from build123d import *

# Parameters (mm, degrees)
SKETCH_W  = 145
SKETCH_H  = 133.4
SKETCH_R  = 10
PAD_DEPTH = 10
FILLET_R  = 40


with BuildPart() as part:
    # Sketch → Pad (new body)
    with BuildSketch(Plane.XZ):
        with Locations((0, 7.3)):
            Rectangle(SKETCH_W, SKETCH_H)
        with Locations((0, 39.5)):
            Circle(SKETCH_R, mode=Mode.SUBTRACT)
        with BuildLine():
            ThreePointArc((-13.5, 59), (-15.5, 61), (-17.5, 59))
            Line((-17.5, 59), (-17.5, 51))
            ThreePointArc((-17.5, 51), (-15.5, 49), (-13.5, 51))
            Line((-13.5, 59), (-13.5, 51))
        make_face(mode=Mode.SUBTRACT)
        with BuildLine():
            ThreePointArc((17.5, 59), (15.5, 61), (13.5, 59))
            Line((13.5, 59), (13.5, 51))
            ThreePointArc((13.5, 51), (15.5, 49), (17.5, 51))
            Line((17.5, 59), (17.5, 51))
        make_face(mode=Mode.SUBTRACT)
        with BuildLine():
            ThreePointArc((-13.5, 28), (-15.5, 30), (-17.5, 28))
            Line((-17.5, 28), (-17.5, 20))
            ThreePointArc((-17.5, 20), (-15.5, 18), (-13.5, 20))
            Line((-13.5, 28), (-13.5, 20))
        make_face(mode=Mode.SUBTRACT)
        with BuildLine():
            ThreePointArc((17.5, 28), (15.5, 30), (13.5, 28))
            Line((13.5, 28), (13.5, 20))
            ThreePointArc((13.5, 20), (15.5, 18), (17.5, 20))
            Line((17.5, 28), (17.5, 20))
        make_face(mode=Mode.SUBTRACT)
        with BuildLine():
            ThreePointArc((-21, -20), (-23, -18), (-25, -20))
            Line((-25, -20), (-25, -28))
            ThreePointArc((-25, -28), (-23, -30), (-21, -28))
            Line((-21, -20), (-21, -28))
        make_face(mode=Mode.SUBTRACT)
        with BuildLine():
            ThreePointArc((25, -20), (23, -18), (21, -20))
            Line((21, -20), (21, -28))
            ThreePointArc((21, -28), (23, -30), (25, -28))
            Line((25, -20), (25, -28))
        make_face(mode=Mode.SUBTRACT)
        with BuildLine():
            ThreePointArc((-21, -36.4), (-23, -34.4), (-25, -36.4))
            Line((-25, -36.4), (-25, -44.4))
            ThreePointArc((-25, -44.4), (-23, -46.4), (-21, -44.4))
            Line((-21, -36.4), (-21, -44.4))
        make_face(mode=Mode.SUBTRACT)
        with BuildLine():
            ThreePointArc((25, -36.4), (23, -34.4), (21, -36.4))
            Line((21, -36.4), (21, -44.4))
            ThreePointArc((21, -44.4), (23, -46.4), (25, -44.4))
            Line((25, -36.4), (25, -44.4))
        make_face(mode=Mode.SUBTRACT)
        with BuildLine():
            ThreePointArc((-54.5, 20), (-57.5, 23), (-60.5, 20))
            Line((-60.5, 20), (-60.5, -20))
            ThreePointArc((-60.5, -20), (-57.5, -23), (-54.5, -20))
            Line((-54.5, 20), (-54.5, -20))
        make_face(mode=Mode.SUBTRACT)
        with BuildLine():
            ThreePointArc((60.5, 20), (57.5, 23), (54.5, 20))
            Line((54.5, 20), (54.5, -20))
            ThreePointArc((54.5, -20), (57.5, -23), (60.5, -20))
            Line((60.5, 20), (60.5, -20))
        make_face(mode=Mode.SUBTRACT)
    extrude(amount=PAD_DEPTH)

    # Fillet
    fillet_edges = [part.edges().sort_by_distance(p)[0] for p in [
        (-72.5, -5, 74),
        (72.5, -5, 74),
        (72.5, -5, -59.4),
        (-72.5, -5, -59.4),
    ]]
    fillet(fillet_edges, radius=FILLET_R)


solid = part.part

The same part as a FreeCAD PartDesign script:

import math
import FreeCAD as App
import Part
import Sketcher
Q = App.Units.Quantity


def edges_at(feature, points):
    """Names of the edges that pass closest to the given points."""
    edges = feature.Shape.Edges
    near = lambda p: min(range(len(edges)), key=lambda i: edges[i].distToShape(Part.Vertex(*p))[0])
    return sorted({f"Edge{near(p) + 1}" for p in points})


def add_polygon(sketch, points):
    """Adds a closed chain of lines whose ends are joined by coincident constraints."""
    first, n = sketch.GeometryCount, len(points)
    for a, b in zip(points, points[1:] + points[:1]):
        sketch.addGeometry(Part.LineSegment(App.Vector(*a, 0), App.Vector(*b, 0)), False)
    for i in range(n):
        sketch.addConstraint(Sketcher.Constraint("Coincident", first + i, 2, first + (i + 1) % n, 1))

doc = App.newDocument("Part")
body = doc.addObject("PartDesign::Body", "Body")

# Sketch on XZ plane
sketch1 = body.newObject("Sketcher::SketchObject", "Sketch")
sketch1.AttachmentSupport = (doc.getObject("XZ_Plane"), [""])
sketch1.MapMode = "FlatFace"
add_polygon(sketch1, [(-72.5, 74), (-72.5, -59.4), (72.5, -59.4), (72.5, 74)])  # lines 0-3
sketch1.addGeometry(Part.ArcOfCircle(Part.Circle(App.Vector(-23, -36.4, 0), App.Vector(0, 0, 1), 2), math.radians(0), math.radians(180)), False)  # 4
sketch1.addGeometry(Part.LineSegment(App.Vector(-21, -36.4, 0), App.Vector(-21, -44.4, 0)), False)  # 5
sketch1.addGeometry(Part.ArcOfCircle(Part.Circle(App.Vector(-23, -44.4, 0), App.Vector(0, 0, 1), 2), math.radians(180), math.radians(360)), False)  # 6
sketch1.addGeometry(Part.LineSegment(App.Vector(-25, -44.4, 0), App.Vector(-25, -36.4, 0)), False)  # 7
sketch1.addGeometry(Part.ArcOfCircle(Part.Circle(App.Vector(-23, -20, 0), App.Vector(0, 0, 1), 2), math.radians(0), math.radians(180)), False)  # 8
sketch1.addGeometry(Part.LineSegment(App.Vector(-21, -20, 0), App.Vector(-21, -28, 0)), False)  # 9
sketch1.addGeometry(Part.ArcOfCircle(Part.Circle(App.Vector(-23, -28, 0), App.Vector(0, 0, 1), 2), math.radians(180), math.radians(360)), False)  # 10
sketch1.addGeometry(Part.LineSegment(App.Vector(-25, -28, 0), App.Vector(-25, -20, 0)), False)  # 11
sketch1.addGeometry(Part.ArcOfCircle(Part.Circle(App.Vector(-57.5, 20, 0), App.Vector(0, 0, 1), 3), math.radians(0), math.radians(180)), False)  # 12
sketch1.addGeometry(Part.LineSegment(App.Vector(-54.5, 20, 0), App.Vector(-54.5, -20, 0)), False)  # 13
sketch1.addGeometry(Part.ArcOfCircle(Part.Circle(App.Vector(-57.5, -20, 0), App.Vector(0, 0, 1), 3), math.radians(180), math.radians(360)), False)  # 14
sketch1.addGeometry(Part.LineSegment(App.Vector(-60.5, -20, 0), App.Vector(-60.5, 20, 0)), False)  # 15
sketch1.addGeometry(Part.ArcOfCircle(Part.Circle(App.Vector(23, -36.4, 0), App.Vector(0, 0, 1), 2), math.radians(0), math.radians(180)), False)  # 16
sketch1.addGeometry(Part.LineSegment(App.Vector(25, -36.4, 0), App.Vector(25, -44.4, 0)), False)  # 17
sketch1.addGeometry(Part.ArcOfCircle(Part.Circle(App.Vector(23, -44.4, 0), App.Vector(0, 0, 1), 2), math.radians(180), math.radians(360)), False)  # 18
sketch1.addGeometry(Part.LineSegment(App.Vector(21, -44.4, 0), App.Vector(21, -36.4, 0)), False)  # 19
sketch1.addGeometry(Part.ArcOfCircle(Part.Circle(App.Vector(23, -20, 0), App.Vector(0, 0, 1), 2), math.radians(0), math.radians(180)), False)  # 20
sketch1.addGeometry(Part.LineSegment(App.Vector(25, -20, 0), App.Vector(25, -28, 0)), False)  # 21
sketch1.addGeometry(Part.ArcOfCircle(Part.Circle(App.Vector(23, -28, 0), App.Vector(0, 0, 1), 2), math.radians(180), math.radians(360)), False)  # 22
sketch1.addGeometry(Part.LineSegment(App.Vector(21, -28, 0), App.Vector(21, -20, 0)), False)  # 23
sketch1.addGeometry(Part.ArcOfCircle(Part.Circle(App.Vector(57.5, 20, 0), App.Vector(0, 0, 1), 3), math.radians(0), math.radians(180)), False)  # 24
sketch1.addGeometry(Part.LineSegment(App.Vector(60.5, 20, 0), App.Vector(60.5, -20, 0)), False)  # 25
sketch1.addGeometry(Part.ArcOfCircle(Part.Circle(App.Vector(57.5, -20, 0), App.Vector(0, 0, 1), 3), math.radians(180), math.radians(360)), False)  # 26
sketch1.addGeometry(Part.LineSegment(App.Vector(54.5, -20, 0), App.Vector(54.5, 20, 0)), False)  # 27
sketch1.addGeometry(Part.ArcOfCircle(Part.Circle(App.Vector(-15.5, 28, 0), App.Vector(0, 0, 1), 2), math.radians(0), math.radians(180)), False)  # 28
sketch1.addGeometry(Part.LineSegment(App.Vector(-13.5, 28, 0), App.Vector(-13.5, 20, 0)), False)  # 29
sketch1.addGeometry(Part.ArcOfCircle(Part.Circle(App.Vector(-15.5, 20, 0), App.Vector(0, 0, 1), 2), math.radians(180), math.radians(360)), False)  # 30
sketch1.addGeometry(Part.LineSegment(App.Vector(-17.5, 20, 0), App.Vector(-17.5, 28, 0)), False)  # 31
sketch1.addGeometry(Part.ArcOfCircle(Part.Circle(App.Vector(-15.5, 59, 0), App.Vector(0, 0, 1), 2), math.radians(0), math.radians(180)), False)  # 32
sketch1.addGeometry(Part.LineSegment(App.Vector(-13.5, 59, 0), App.Vector(-13.5, 51, 0)), False)  # 33
sketch1.addGeometry(Part.ArcOfCircle(Part.Circle(App.Vector(-15.5, 51, 0), App.Vector(0, 0, 1), 2), math.radians(180), math.radians(360)), False)  # 34
sketch1.addGeometry(Part.LineSegment(App.Vector(-17.5, 51, 0), App.Vector(-17.5, 59, 0)), False)  # 35
sketch1.addGeometry(Part.ArcOfCircle(Part.Circle(App.Vector(15.5, 28, 0), App.Vector(0, 0, 1), 2), math.radians(0), math.radians(180)), False)  # 36
sketch1.addGeometry(Part.LineSegment(App.Vector(17.5, 28, 0), App.Vector(17.5, 20, 0)), False)  # 37
sketch1.addGeometry(Part.ArcOfCircle(Part.Circle(App.Vector(15.5, 20, 0), App.Vector(0, 0, 1), 2), math.radians(180), math.radians(360)), False)  # 38
sketch1.addGeometry(Part.LineSegment(App.Vector(13.5, 20, 0), App.Vector(13.5, 28, 0)), False)  # 39
sketch1.addGeometry(Part.Circle(App.Vector(0, 39.5, 0), App.Vector(0, 0, 1), 10), False)  # 40
sketch1.addGeometry(Part.ArcOfCircle(Part.Circle(App.Vector(15.5, 59, 0), App.Vector(0, 0, 1), 2), math.radians(0), math.radians(180)), False)  # 41
sketch1.addGeometry(Part.LineSegment(App.Vector(17.5, 59, 0), App.Vector(17.5, 51, 0)), False)  # 42
sketch1.addGeometry(Part.ArcOfCircle(Part.Circle(App.Vector(15.5, 51, 0), App.Vector(0, 0, 1), 2), math.radians(180), math.radians(360)), False)  # 43
sketch1.addGeometry(Part.LineSegment(App.Vector(13.5, 51, 0), App.Vector(13.5, 59, 0)), False)  # 44
sketch1.addConstraint(Sketcher.Constraint("Tangent", 4, 1, 5, 1))
sketch1.addConstraint(Sketcher.Constraint("Tangent", 5, 2, 6, 2))
sketch1.addConstraint(Sketcher.Constraint("Tangent", 6, 1, 7, 1))
sketch1.addConstraint(Sketcher.Constraint("Tangent", 7, 2, 4, 2))
sketch1.addConstraint(Sketcher.Constraint("Tangent", 8, 1, 9, 1))
sketch1.addConstraint(Sketcher.Constraint("Tangent", 9, 2, 10, 2))
sketch1.addConstraint(Sketcher.Constraint("Tangent", 10, 1, 11, 1))
sketch1.addConstraint(Sketcher.Constraint("Tangent", 11, 2, 8, 2))
sketch1.addConstraint(Sketcher.Constraint("Tangent", 12, 1, 13, 1))
sketch1.addConstraint(Sketcher.Constraint("Tangent", 13, 2, 14, 2))
sketch1.addConstraint(Sketcher.Constraint("Tangent", 14, 1, 15, 1))
sketch1.addConstraint(Sketcher.Constraint("Tangent", 15, 2, 12, 2))
sketch1.addConstraint(Sketcher.Constraint("Tangent", 16, 1, 17, 1))
sketch1.addConstraint(Sketcher.Constraint("Tangent", 17, 2, 18, 2))
sketch1.addConstraint(Sketcher.Constraint("Tangent", 18, 1, 19, 1))
sketch1.addConstraint(Sketcher.Constraint("Tangent", 19, 2, 16, 2))
sketch1.addConstraint(Sketcher.Constraint("Tangent", 20, 1, 21, 1))
sketch1.addConstraint(Sketcher.Constraint("Tangent", 21, 2, 22, 2))
sketch1.addConstraint(Sketcher.Constraint("Tangent", 22, 1, 23, 1))
sketch1.addConstraint(Sketcher.Constraint("Tangent", 23, 2, 20, 2))
sketch1.addConstraint(Sketcher.Constraint("Tangent", 24, 1, 25, 1))
sketch1.addConstraint(Sketcher.Constraint("Tangent", 25, 2, 26, 2))
sketch1.addConstraint(Sketcher.Constraint("Tangent", 26, 1, 27, 1))
sketch1.addConstraint(Sketcher.Constraint("Tangent", 27, 2, 24, 2))
sketch1.addConstraint(Sketcher.Constraint("Tangent", 28, 1, 29, 1))
sketch1.addConstraint(Sketcher.Constraint("Tangent", 29, 2, 30, 2))
sketch1.addConstraint(Sketcher.Constraint("Tangent", 30, 1, 31, 1))
sketch1.addConstraint(Sketcher.Constraint("Tangent", 31, 2, 28, 2))
sketch1.addConstraint(Sketcher.Constraint("Tangent", 32, 1, 33, 1))
sketch1.addConstraint(Sketcher.Constraint("Tangent", 33, 2, 34, 2))
sketch1.addConstraint(Sketcher.Constraint("Tangent", 34, 1, 35, 1))
sketch1.addConstraint(Sketcher.Constraint("Tangent", 35, 2, 32, 2))
sketch1.addConstraint(Sketcher.Constraint("Tangent", 36, 1, 37, 1))
sketch1.addConstraint(Sketcher.Constraint("Tangent", 37, 2, 38, 2))
sketch1.addConstraint(Sketcher.Constraint("Tangent", 38, 1, 39, 1))
sketch1.addConstraint(Sketcher.Constraint("Tangent", 39, 2, 36, 2))
sketch1.addConstraint(Sketcher.Constraint("Tangent", 41, 1, 42, 1))
sketch1.addConstraint(Sketcher.Constraint("Tangent", 42, 2, 43, 2))
sketch1.addConstraint(Sketcher.Constraint("Tangent", 43, 1, 44, 1))
sketch1.addConstraint(Sketcher.Constraint("Tangent", 44, 2, 41, 2))
sketch1.addConstraint(Sketcher.Constraint("Vertical", 0))
sketch1.addConstraint(Sketcher.Constraint("Horizontal", 1))
sketch1.addConstraint(Sketcher.Constraint("Vertical", 2))
sketch1.addConstraint(Sketcher.Constraint("Horizontal", 3))
sketch1.addConstraint(Sketcher.Constraint("Vertical", 5))
sketch1.addConstraint(Sketcher.Constraint("Vertical", 7))
sketch1.addConstraint(Sketcher.Constraint("Vertical", 9))
sketch1.addConstraint(Sketcher.Constraint("Vertical", 11))
sketch1.addConstraint(Sketcher.Constraint("Vertical", 13))
sketch1.addConstraint(Sketcher.Constraint("Vertical", 15))
sketch1.addConstraint(Sketcher.Constraint("Vertical", 17))
sketch1.addConstraint(Sketcher.Constraint("Vertical", 19))
sketch1.addConstraint(Sketcher.Constraint("Vertical", 21))
sketch1.addConstraint(Sketcher.Constraint("Vertical", 23))
sketch1.addConstraint(Sketcher.Constraint("Vertical", 25))
sketch1.addConstraint(Sketcher.Constraint("Vertical", 27))
sketch1.addConstraint(Sketcher.Constraint("Vertical", 29))
sketch1.addConstraint(Sketcher.Constraint("Vertical", 31))
sketch1.addConstraint(Sketcher.Constraint("Vertical", 33))
sketch1.addConstraint(Sketcher.Constraint("Vertical", 35))
sketch1.addConstraint(Sketcher.Constraint("Vertical", 37))
sketch1.addConstraint(Sketcher.Constraint("Vertical", 39))
sketch1.addConstraint(Sketcher.Constraint("Vertical", 42))
sketch1.addConstraint(Sketcher.Constraint("Vertical", 44))
sketch1.addConstraint(Sketcher.Constraint("Equal", 6, 8))
sketch1.addConstraint(Sketcher.Constraint("Equal", 10, 16))
sketch1.addConstraint(Sketcher.Constraint("Equal", 18, 20))
sketch1.addConstraint(Sketcher.Constraint("Equal", 14, 24))
sketch1.addConstraint(Sketcher.Constraint("Equal", 22, 28))
sketch1.addConstraint(Sketcher.Constraint("Equal", 30, 32))
sketch1.addConstraint(Sketcher.Constraint("Equal", 34, 36))
sketch1.addConstraint(Sketcher.Constraint("Equal", 38, 41))
sketch1.addConstraint(Sketcher.Constraint("Symmetric", 14, 3, 24, 3, -1, 1))
sketch1.addConstraint(Sketcher.Constraint("Symmetric", 4, 3, 16, 3, -2))
sketch1.addConstraint(Sketcher.Constraint("Symmetric", 8, 3, 20, 3, -2))
sketch1.addConstraint(Sketcher.Constraint("Symmetric", 28, 3, 36, 3, -2))
sketch1.addConstraint(Sketcher.Constraint("Symmetric", 32, 3, 41, 3, -2))
sketch1.addConstraint(Sketcher.Constraint("PointOnObject", 40, 3, -2))
sketch1.addConstraint(Sketcher.Constraint("Horizontal", 8, 3, 14, 3))
sketch1.addConstraint(Sketcher.Constraint("Horizontal", 6, 3, 18, 3))
sketch1.addConstraint(Sketcher.Constraint("Horizontal", 10, 3, 22, 3))
sketch1.addConstraint(Sketcher.Constraint("Horizontal", 12, 3, 24, 3))
sketch1.addConstraint(Sketcher.Constraint("Horizontal", 20, 3, 26, 3))
sketch1.addConstraint(Sketcher.Constraint("Horizontal", 24, 3, 30, 3))
sketch1.addConstraint(Sketcher.Constraint("Horizontal", 30, 3, 38, 3))
sketch1.addConstraint(Sketcher.Constraint("Horizontal", 34, 3, 43, 3))
sketch1.addConstraint(Sketcher.Constraint("Vertical", 6, 3, 8, 3))
sketch1.addConstraint(Sketcher.Constraint("Vertical", 30, 3, 32, 3))
sketch1.addConstraint(Sketcher.Constraint("Equal", 7, 9))
sketch1.addConstraint(Sketcher.Constraint("Equal", 23, 29))
sketch1.addConstraint(Sketcher.Constraint("Equal", 31, 33))
sketch1.addConstraint(Sketcher.Constraint("Diameter", 40, Q("20 mm")))
sketch1.addConstraint(Sketcher.Constraint("Radius", 4, Q("2 mm")))
sketch1.addConstraint(Sketcher.Constraint("Radius", 12, Q("3 mm")))
sketch1.addConstraint(Sketcher.Constraint("DistanceX", 1, 1, 1, 2, Q("145 mm")))
sketch1.addConstraint(Sketcher.Constraint("DistanceY", 5, 2, 5, 1, Q("8 mm")))
sketch1.addConstraint(Sketcher.Constraint("DistanceY", 13, 2, 13, 1, Q("40 mm")))
sketch1.addConstraint(Sketcher.Constraint("DistanceY", 0, 2, 0, 1, Q("133.4 mm")))
sketch1.addConstraint(Sketcher.Constraint("DistanceX", 4, 3, -1, 1, Q("23 mm")))
sketch1.addConstraint(Sketcher.Constraint("DistanceY", -1, 1, 32, 3, Q("59 mm")))
sketch1.addConstraint(Sketcher.Constraint("DistanceY", -1, 1, 2, 2, Q("74 mm")))
sketch1.addConstraint(Sketcher.Constraint("DistanceY", 4, 3, -1, 1, Q("36.4 mm")))
sketch1.addConstraint(Sketcher.Constraint("DistanceX", 12, 3, -1, 1, Q("57.5 mm")))
sketch1.addConstraint(Sketcher.Constraint("DistanceX", 28, 3, -1, 1, Q("15.5 mm")))
sketch1.addConstraint(Sketcher.Constraint("DistanceY", -1, 1, 40, 3, Q("39.5 mm")))
sketch1.addConstraint(Sketcher.Constraint("DistanceX", 0, 2, -1, 1, Q("72.5 mm")))
pad1 = body.newObject("PartDesign::Pad", "Pad")
pad1.Profile = sketch1
pad1.Length = 10
doc.recompute()

fillet = body.newObject("PartDesign::Fillet", "Fillet")
fillet.Base = (pad1, edges_at(pad1, [
    (-72.5, -5, 74),
    (72.5, -5, 74),
    (72.5, -5, -59.4),
    (-72.5, -5, -59.4),
]))
fillet.Radius = 40

doc.recompute()
